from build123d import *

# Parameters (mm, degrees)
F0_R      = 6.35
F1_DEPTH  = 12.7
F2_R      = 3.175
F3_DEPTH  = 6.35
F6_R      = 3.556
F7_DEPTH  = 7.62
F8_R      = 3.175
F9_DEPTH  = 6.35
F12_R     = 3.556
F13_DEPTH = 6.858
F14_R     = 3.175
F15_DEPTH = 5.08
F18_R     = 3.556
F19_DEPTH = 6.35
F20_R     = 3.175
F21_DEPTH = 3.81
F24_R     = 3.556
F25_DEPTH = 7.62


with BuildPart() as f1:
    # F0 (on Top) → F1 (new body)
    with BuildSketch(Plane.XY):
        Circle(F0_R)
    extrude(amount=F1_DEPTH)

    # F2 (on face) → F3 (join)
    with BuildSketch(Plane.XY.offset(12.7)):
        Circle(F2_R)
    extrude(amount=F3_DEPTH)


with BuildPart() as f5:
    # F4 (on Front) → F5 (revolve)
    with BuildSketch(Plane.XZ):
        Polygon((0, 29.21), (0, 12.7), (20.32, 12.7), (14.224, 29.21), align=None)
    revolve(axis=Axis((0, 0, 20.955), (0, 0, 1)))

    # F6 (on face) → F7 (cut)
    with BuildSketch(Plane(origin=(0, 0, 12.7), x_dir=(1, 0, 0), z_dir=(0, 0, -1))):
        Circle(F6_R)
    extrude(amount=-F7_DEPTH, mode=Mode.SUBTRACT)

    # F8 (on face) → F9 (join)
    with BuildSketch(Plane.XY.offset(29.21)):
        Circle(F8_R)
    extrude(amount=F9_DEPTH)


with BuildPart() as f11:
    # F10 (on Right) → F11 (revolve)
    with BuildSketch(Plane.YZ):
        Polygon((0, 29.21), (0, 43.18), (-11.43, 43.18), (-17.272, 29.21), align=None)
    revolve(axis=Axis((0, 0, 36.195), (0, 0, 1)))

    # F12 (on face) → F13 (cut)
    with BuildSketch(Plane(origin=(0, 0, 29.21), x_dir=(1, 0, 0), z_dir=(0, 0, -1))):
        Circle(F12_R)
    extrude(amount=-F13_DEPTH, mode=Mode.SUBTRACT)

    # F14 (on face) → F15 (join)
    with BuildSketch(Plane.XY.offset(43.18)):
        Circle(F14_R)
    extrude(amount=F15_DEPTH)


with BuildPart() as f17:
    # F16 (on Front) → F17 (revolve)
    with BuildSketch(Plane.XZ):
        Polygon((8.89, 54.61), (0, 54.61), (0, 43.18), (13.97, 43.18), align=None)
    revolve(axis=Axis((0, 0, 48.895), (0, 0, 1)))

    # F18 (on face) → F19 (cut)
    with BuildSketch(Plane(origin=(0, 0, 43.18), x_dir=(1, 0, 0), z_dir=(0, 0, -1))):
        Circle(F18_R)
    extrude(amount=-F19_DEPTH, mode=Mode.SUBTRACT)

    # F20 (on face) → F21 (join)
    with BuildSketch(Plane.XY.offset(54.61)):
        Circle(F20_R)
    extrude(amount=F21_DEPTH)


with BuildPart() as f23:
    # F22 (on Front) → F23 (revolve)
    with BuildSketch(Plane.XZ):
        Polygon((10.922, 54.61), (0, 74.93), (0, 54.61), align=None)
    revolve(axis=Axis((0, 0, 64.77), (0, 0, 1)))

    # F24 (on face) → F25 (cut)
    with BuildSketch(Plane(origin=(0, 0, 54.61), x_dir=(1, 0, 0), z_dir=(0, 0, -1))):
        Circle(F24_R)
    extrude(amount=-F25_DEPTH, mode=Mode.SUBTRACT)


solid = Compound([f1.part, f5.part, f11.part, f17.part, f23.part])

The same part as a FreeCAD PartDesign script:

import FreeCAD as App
import Part
import Sketcher

V = App.Vector
Q = App.Units.Quantity


def add_polygon(sketch, points):
    """Adds a closed chain of lines whose ends are joined by coincident constraints."""
    first, n = sketch.GeometryCount, len(points)
    for a, b in zip(points, points[1:] + points[:1]):
        sketch.addGeometry(Part.LineSegment(App.Vector(*a, 0), App.Vector(*b, 0)), False)
    for i in range(n):
        sketch.addConstraint(Sketcher.Constraint("Coincident", first + i, 2, first + (i + 1) % n, 1))

doc = App.newDocument("Part")
body = doc.addObject("PartDesign::Body", "Body")

# Sketch on XY plane
sketch1 = doc.addObject("Sketcher::SketchObject", "Sketch")
body.addObject(sketch1)
sketch1.AttachmentSupport = (doc.XY_Plane, [""])
sketch1.MapMode = "FlatFace"
sketch1.addGeometry(Part.Circle(V(0, 0, 0), V(0, 0, 1), 6), False)
sketch1.addConstraint(Sketcher.Constraint("Coincident", 0, 3, -1, 1))
sketch1.addConstraint(Sketcher.Constraint("Diameter", 0, Q("0.5 in")))
pad1 = doc.addObject("PartDesign::Pad", "Pad")
body.addObject(pad1)
pad1.Profile = sketch1
pad1.Length = Q("0.5 in")

# Sketch on XY plane
sketch2 = doc.addObject("Sketcher::SketchObject", "Sketch001")
body.addObject(sketch2)
sketch2.AttachmentSupport = (doc.XY_Plane, [""])
sketch2.MapMode = "FlatFace"
sketch2.AttachmentOffset = App.Placement(V(0, 0, 0.5 * 25.4), App.Rotation())
sketch2.addGeometry(Part.Circle(V(0, 0, 0), V(0, 0, 1), 3.2), False)
sketch2.addConstraint(Sketcher.Constraint("Coincident", 0, 3, -1, 1))
sketch2.addConstraint(Sketcher.Constraint("Diameter", 0, Q("0.25 in")))
pad2 = doc.addObject("PartDesign::Pad", "Pad001")
body.addObject(pad2)
pad2.Profile = sketch2
pad2.Length = Q("0.25 in")
body2 = doc.addObject("PartDesign::Body", "Body001")

# Sketch on XZ plane
sketch3 = doc.addObject("Sketcher::SketchObject", "Sketch002")
body2.addObject(sketch3)
sketch3.AttachmentSupport = (doc.getObject("XZ_Plane001"), [""])
sketch3.MapMode = "FlatFace"
add_polygon(sketch3, [(0, 29), (0, 13), (20, 13), (14, 29)])  # lines 0-3
sketch3.addConstraint(Sketcher.Constraint("Vertical", 0))
sketch3.addConstraint(Sketcher.Constraint("Horizontal", 1))
sketch3.addConstraint(Sketcher.Constraint("Horizontal", 3))
sketch3.addConstraint(Sketcher.Constraint("PointOnObject", 0, 2, -2))
sketch3.addConstraint(Sketcher.Constraint("DistanceX", 1, 1, 1, 2, Q("0.8 in")))
sketch3.addConstraint(Sketcher.Constraint("DistanceX", 3, 2, 3, 1, Q("0.56 in")))
sketch3.addConstraint(Sketcher.Constraint("DistanceY", 0, 2, 0, 1, Q("0.65 in")))
sketch3.addConstraint(Sketcher.Constraint("DistanceY", -1, 1, 0, 2, Q("0.5 in")))
revolution = doc.addObject("PartDesign::Revolution", "Revolution")
body2.addObject(revolution)
revolution.Profile = sketch3
revolution.ReferenceAxis = (sketch3, ["V_Axis"])
revolution.Angle = 360

# Sketch on XY plane
sketch4 = doc.addObject("Sketcher::SketchObject", "Sketch003")
body2.addObject(sketch4)
sketch4.AttachmentSupport = (doc.getObject("XY_Plane001"), [""])
sketch4.MapMode = "FlatFace"
sketch4.AttachmentOffset = App.Placement(V(0, 0, 0.5 * 25.4), App.Rotation())
sketch4.addGeometry(Part.Circle(V(0, 0, 0), V(0, 0, 1), 3.6), False)
sketch4.addConstraint(Sketcher.Constraint("Coincident", 0, 3, -1, 1))
sketch4.addConstraint(Sketcher.Constraint("Diameter", 0, Q("0.28 in")))
pocket1 = doc.addObject("PartDesign::Pocket", "Pocket")
body2.addObject(pocket1)
pocket1.Profile = sketch4
pocket1.Length = Q("0.3 in")
pocket1.Reversed = True

# Sketch on XY plane
sketch5 = doc.addObject("Sketcher::SketchObject", "Sketch004")
body2.addObject(sketch5)
sketch5.AttachmentSupport = (doc.getObject("XY_Plane001"), [""])
sketch5.MapMode = "FlatFace"
sketch5.AttachmentOffset = App.Placement(V(0, 0, 1.15 * 25.4), App.Rotation())
sketch5.addGeometry(Part.Circle(V(0, 0, 0), V(0, 0, 1), 3.2), False)
sketch5.addConstraint(Sketcher.Constraint("Coincident", 0, 3, -1, 1))
sketch5.addConstraint(Sketcher.Constraint("Diameter", 0, Q("0.25 in")))
pad3 = doc.addObject("PartDesign::Pad", "Pad002")
body2.addObject(pad3)
pad3.Profile = sketch5
pad3.Length = Q("0.25 in")
body3 = doc.addObject("PartDesign::Body", "Body002")

# Sketch on YZ plane
sketch6 = doc.addObject("Sketcher::SketchObject", "Sketch005")
body3.addObject(sketch6)
sketch6.AttachmentSupport = (doc.getObject("YZ_Plane002"), [""])
sketch6.MapMode = "FlatFace"
add_polygon(sketch6, [(0, 29), (0, 43), (-11, 43), (-17, 29)])  # lines 0-3
sketch6.addConstraint(Sketcher.Constraint("Vertical", 0))
sketch6.addConstraint(Sketcher.Constraint("Horizontal", 1))
sketch6.addConstraint(Sketcher.Constraint("Horizontal", 3))
sketch6.addConstraint(Sketcher.Constraint("PointOnObject", 0, 2, -2))
sketch6.addConstraint(Sketcher.Constraint("DistanceX", 1, 2, 1, 1, Q("0.45 in")))
sketch6.addConstraint(Sketcher.Constraint("DistanceX", 3, 1, 3, 2, Q("0.68 in")))
sketch6.addConstraint(Sketcher.Constraint("DistanceY", 0, 1, 0, 2, Q("0.55 in")))
sketch6.addConstraint(Sketcher.Constraint("DistanceY", -1, 1, 0, 2, Q("1.7 in")))
revolution2 = doc.addObject("PartDesign::Revolution", "Revolution001")
body3.addObject(revolution2)
revolution2.Profile = sketch6
revolution2.ReferenceAxis = (sketch6, ["V_Axis"])
revolution2.Angle = 360

# Sketch on XY plane
sketch7 = doc.addObject("Sketcher::SketchObject", "Sketch006")
body3.addObject(sketch7)
sketch7.AttachmentSupport = (doc.getObject("XY_Plane002"), [""])
sketch7.MapMode = "FlatFace"
sketch7.AttachmentOffset = App.Placement(V(0, 0, 1.15 * 25.4), App.Rotation())
sketch7.addGeometry(Part.Circle(V(0, 0, 0), V(0, 0, 1), 3.6), False)
sketch7.addConstraint(Sketcher.Constraint("Coincident", 0, 3, -1, 1))
sketch7.addConstraint(Sketcher.Constraint("Diameter", 0, Q("0.28 in")))
pocket2 = doc.addObject("PartDesign::Pocket", "Pocket001")
body3.addObject(pocket2)
pocket2.Profile = sketch7
pocket2.Length = Q("0.27 in")
pocket2.Reversed = True

# Sketch on XY plane
sketch8 = doc.addObject("Sketcher::SketchObject", "Sketch007")
body3.addObject(sketch8)
sketch8.AttachmentSupport = (doc.getObject("XY_Plane002"), [""])
sketch8.MapMode = "FlatFace"
sketch8.AttachmentOffset = App.Placement(V(0, 0, 1.7 * 25.4), App.Rotation())
sketch8.addGeometry(Part.Circle(V(0, 0, 0), V(0, 0, 1), 3.2), False)
sketch8.addConstraint(Sketcher.Constraint("Coincident", 0, 3, -1, 1))
sketch8.addConstraint(Sketcher.Constraint("Diameter", 0, Q("0.25 in")))
pad4 = doc.addObject("PartDesign::Pad", "Pad003")
body3.addObject(pad4)
pad4.Profile = sketch8
pad4.Length = Q("0.2 in")
body4 = doc.addObject("PartDesign::Body", "Body003")

# Sketch on XZ plane
sketch9 = doc.addObject("Sketcher::SketchObject", "Sketch008")
body4.addObject(sketch9)
sketch9.AttachmentSupport = (doc.getObject("XZ_Plane003"), [""])
sketch9.MapMode = "FlatFace"
add_polygon(sketch9, [(9, 55), (0, 55), (0, 43), (14, 43)])  # lines 0-3
sketch9.addConstraint(Sketcher.Constraint("Horizontal", 0))
sketch9.addConstraint(Sketcher.Constraint("Vertical", 1))
sketch9.addConstraint(Sketcher.Constraint("Horizontal", 2))
sketch9.addConstraint(Sketcher.Constraint("PointOnObject", 0, 2, -2))
sketch9.addConstraint(Sketcher.Constraint("DistanceX", 0, 2, 0, 1, Q("0.35 in")))
sketch9.addConstraint(Sketcher.Constraint("DistanceX", 2, 1, 2, 2, Q("0.55 in")))
sketch9.addConstraint(Sketcher.Constraint("DistanceY", 1, 2, 1, 1, Q("0.45 in")))
sketch9.addConstraint(Sketcher.Constraint("DistanceY", -1, 1, 1, 2, Q("1.7 in")))
revolution3 = doc.addObject("PartDesign::Revolution", "Revolution002")
body4.addObject(revolution3)
revolution3.Profile = sketch9
revolution3.ReferenceAxis = (sketch9, ["V_Axis"])
revolution3.Angle = 360

# Sketch on XY plane
sketch10 = doc.addObject("Sketcher::SketchObject", "Sketch009")
body4.addObject(sketch10)
sketch10.AttachmentSupport = (doc.getObject("XY_Plane003"), [""])
sketch10.MapMode = "FlatFace"
sketch10.AttachmentOffset = App.Placement(V(0, 0, 1.7 * 25.4), App.Rotation())
sketch10.addGeometry(Part.Circle(V(0, 0, 0), V(0, 0, 1), 3.6), False)
sketch10.addConstraint(Sketcher.Constraint("Coincident", 0, 3, -1, 1))
sketch10.addConstraint(Sketcher.Constraint("Diameter", 0, Q("0.28 in")))
pocket3 = doc.addObject("PartDesign::Pocket", "Pocket002")
body4.addObject(pocket3)
pocket3.Profile = sketch10
pocket3.Length = Q("0.25 in")
pocket3.Reversed = True

# Sketch on XY plane
sketch11 = doc.addObject("Sketcher::SketchObject", "Sketch010")
body4.addObject(sketch11)
sketch11.AttachmentSupport = (doc.getObject("XY_Plane003"), [""])
sketch11.MapMode = "FlatFace"
sketch11.AttachmentOffset = App.Placement(V(0, 0, 2.15 * 25.4), App.Rotation())
sketch11.addGeometry(Part.Circle(V(0, 0, 0), V(0, 0, 1), 3.2), False)
sketch11.addConstraint(Sketcher.Constraint("Coincident", 0, 3, -1, 1))
sketch11.addConstraint(Sketcher.Constraint("Diameter", 0, Q("0.25 in")))
pad5 = doc.addObject("PartDesign::Pad", "Pad004")
body4.addObject(pad5)
pad5.Profile = sketch11
pad5.Length = Q("0.15 in")
body5 = doc.addObject("PartDesign::Body", "Body004")

# Sketch on XZ plane
sketch12 = doc.addObject("Sketcher::SketchObject", "Sketch011")
body5.addObject(sketch12)
sketch12.AttachmentSupport = (doc.getObject("XZ_Plane004"), [""])
sketch12.MapMode = "FlatFace"
add_polygon(sketch12, [(11, 55), (0, 75), (0, 55)])  # lines 0-2
sketch12.addConstraint(Sketcher.Constraint("Vertical", 1))
sketch12.addConstraint(Sketcher.Constraint("Horizontal", 2))
sketch12.addConstraint(Sketcher.Constraint("PointOnObject", 0, 2, -2))
sketch12.addConstraint(Sketcher.Constraint("DistanceY", 1, 2, 1, 1, Q("0.8 in")))
sketch12.addConstraint(Sketcher.Constraint("DistanceX", 2, 1, 2, 2, Q("0.43 in")))
sketch12.addConstraint(Sketcher.Constraint("DistanceY", -1, 1, 0, 2, Q("2.95 in")))
revolution4 = doc.addObject("PartDesign::Revolution", "Revolution003")
body5.addObject(revolution4)
revolution4.Profile = sketch12
revolution4.ReferenceAxis = (sketch12, ["V_Axis"])
revolution4.Angle = 360

# Sketch on XY plane
sketch13 = doc.addObject("Sketcher::SketchObject", "Sketch012")
body5.addObject(sketch13)
sketch13.AttachmentSupport = (doc.getObject("XY_Plane004"), [""])
sketch13.MapMode = "FlatFace"
sketch13.AttachmentOffset = App.Placement(V(0, 0, 2.15 * 25.4), App.Rotation())
sketch13.addGeometry(Part.Circle(V(0, 0, 0), V(0, 0, 1), 3.6), False)
sketch13.addConstraint(Sketcher.Constraint("Coincident", 0, 3, -1, 1))
sketch13.addConstraint(Sketcher.Constraint("Diameter", 0, Q("0.28 in")))
pocket4 = doc.addObject("PartDesign::Pocket", "Pocket003")
body5.addObject(pocket4)
pocket4.Profile = sketch13
pocket4.Length = Q("0.3 in")
pocket4.Reversed = True

doc.recompute()
